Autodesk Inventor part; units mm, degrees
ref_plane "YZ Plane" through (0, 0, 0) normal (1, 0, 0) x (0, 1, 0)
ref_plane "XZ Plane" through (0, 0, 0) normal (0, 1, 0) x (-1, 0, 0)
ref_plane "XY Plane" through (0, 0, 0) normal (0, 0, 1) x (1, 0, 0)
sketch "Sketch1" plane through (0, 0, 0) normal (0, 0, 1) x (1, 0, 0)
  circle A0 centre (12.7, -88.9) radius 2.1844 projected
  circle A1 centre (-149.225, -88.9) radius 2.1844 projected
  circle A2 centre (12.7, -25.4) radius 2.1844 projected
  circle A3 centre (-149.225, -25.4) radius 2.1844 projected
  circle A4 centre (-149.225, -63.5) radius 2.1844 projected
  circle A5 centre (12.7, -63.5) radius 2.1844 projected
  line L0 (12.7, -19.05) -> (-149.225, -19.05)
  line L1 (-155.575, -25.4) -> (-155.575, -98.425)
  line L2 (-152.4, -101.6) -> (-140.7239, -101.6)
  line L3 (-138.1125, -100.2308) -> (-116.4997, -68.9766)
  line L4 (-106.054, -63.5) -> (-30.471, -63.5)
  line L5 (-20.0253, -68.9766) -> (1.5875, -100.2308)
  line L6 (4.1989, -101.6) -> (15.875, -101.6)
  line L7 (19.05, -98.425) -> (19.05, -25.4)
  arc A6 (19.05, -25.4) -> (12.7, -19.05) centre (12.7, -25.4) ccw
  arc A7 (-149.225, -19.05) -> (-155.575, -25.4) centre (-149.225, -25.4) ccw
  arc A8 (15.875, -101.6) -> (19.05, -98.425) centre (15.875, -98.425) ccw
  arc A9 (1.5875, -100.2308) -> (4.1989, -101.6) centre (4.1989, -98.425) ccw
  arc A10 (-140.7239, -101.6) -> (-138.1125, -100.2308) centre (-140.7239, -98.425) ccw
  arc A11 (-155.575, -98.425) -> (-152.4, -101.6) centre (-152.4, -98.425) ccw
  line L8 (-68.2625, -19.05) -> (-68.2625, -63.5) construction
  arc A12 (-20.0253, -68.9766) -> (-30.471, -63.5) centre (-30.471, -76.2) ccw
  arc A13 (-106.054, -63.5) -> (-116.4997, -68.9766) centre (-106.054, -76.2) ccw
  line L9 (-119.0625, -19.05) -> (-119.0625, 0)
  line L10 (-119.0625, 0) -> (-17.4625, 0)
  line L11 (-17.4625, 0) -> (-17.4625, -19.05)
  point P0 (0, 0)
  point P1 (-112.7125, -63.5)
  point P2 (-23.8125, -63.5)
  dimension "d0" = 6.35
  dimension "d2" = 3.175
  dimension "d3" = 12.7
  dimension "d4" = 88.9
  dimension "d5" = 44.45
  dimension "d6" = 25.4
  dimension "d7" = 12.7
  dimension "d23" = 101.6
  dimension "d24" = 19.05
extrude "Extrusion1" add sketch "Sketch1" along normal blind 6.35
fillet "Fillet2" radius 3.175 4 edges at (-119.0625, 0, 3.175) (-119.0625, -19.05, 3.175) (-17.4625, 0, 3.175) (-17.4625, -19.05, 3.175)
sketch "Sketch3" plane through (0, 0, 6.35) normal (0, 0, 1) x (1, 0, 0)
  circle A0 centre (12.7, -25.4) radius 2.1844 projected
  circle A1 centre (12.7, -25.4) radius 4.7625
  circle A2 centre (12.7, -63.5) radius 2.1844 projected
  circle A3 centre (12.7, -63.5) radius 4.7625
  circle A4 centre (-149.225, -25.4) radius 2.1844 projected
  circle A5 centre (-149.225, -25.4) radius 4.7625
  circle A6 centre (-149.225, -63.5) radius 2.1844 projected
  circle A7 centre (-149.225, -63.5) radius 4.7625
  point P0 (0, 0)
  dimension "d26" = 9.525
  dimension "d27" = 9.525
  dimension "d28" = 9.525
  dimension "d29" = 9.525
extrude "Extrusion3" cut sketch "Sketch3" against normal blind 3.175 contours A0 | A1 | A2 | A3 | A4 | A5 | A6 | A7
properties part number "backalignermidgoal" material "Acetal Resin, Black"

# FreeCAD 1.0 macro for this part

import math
import FreeCAD as App
import Part
import Sketcher

V = App.Vector
Q = App.Units.Quantity


def edges_at(feature, points):
    """Names of the edges that pass closest to the given points."""
    edges = feature.Shape.Edges
    near = lambda p: min(range(len(edges)), key=lambda i: edges[i].distToShape(Part.Vertex(*p))[0])
    return sorted({f"Edge{near(p) + 1}" for p in points})

doc = App.newDocument("Part")
body = doc.addObject("PartDesign::Body", "Body")

# Sketch on XY plane
sketch1 = doc.addObject("Sketcher::SketchObject", "Sketch")
body.addObject(sketch1)
sketch1.AttachmentSupport = (doc.XY_Plane, [""])
sketch1.MapMode = "FlatFace"
sketch1.addGeometry([
    Part.ArcOfCircle(Part.Circle(V(12.7, -25.4, 0), V(0, 0, 1), 6.35), math.radians(0), math.radians(90)),  # 0
    Part.LineSegment(V(12.7, -19.05, 0), V(-17.4625, -19.05, 0)),  # 1
    Part.LineSegment(V(-17.4625, -19.05, 0), V(-17.4625, 0, 0)),  # 2
    Part.LineSegment(V(-17.4625, 0, 0), V(-119.0625, 0, 0)),  # 3
    Part.LineSegment(V(-119.0625, 0, 0), V(-119.0625, -19.05, 0)),  # 4
    Part.LineSegment(V(-119.0625, -19.05, 0), V(-149.225, -19.05, 0)),  # 5
    Part.ArcOfCircle(Part.Circle(V(-149.225, -25.4, 0), V(0, 0, 1), 6.35), math.radians(90), math.radians(180)),  # 6
    Part.LineSegment(V(-155.575, -25.4, 0), V(-155.575, -98.425, 0)),  # 7
    Part.ArcOfCircle(Part.Circle(V(-152.4, -98.425, 0), V(0, 0, 1), 3.175), math.radians(180), math.radians(270)),  # 8
    Part.LineSegment(V(-152.4, -101.6, 0), V(-140.7239, -101.6, 0)),  # 9
    Part.ArcOfCircle(Part.Circle(V(-140.7239, -98.425, 0), V(0, 0, 1), 3.175), math.radians(-90), math.radians(-34.664109)),  # 10
    Part.LineSegment(V(-138.1125, -100.2308, 0), V(-116.4997, -68.9766, 0)),  # 11
    Part.ArcOfCircle(Part.Circle(V(-106.054, -76.2, 0), V(0, 0, 1), 12.7), math.radians(90), math.radians(145.335405)),  # 12
    Part.LineSegment(V(-106.054, -63.5, 0), V(-30.471, -63.5, 0)),  # 13
    Part.ArcOfCircle(Part.Circle(V(-30.471, -76.2, 0), V(0, 0, 1), 12.700006), math.radians(34.664595), math.radians(90)),  # 14
    Part.LineSegment(V(-20.0253, -68.9766, 0), V(1.5875, -100.2308, 0)),  # 15
    Part.ArcOfCircle(Part.Circle(V(4.1989, -98.425, 0), V(0, 0, 1), 3.174953), math.radians(-145.335891), math.radians(-90)),  # 16
    Part.LineSegment(V(4.1989, -101.6, 0), V(15.875, -101.6, 0)),  # 17
    Part.ArcOfCircle(Part.Circle(V(15.875, -98.425, 0), V(0, 0, 1), 3.175), math.radians(-90), math.radians(0)),  # 18
    Part.LineSegment(V(19.05, -98.425, 0), V(19.05, -25.4, 0)),  # 19
    Part.Circle(V(-149.225, -88.9, 0), V(0, 0, 1), 2.1844),  # 20
    Part.Circle(V(-149.225, -63.5, 0), V(0, 0, 1), 2.1844),  # 21
    Part.Circle(V(12.7, -88.9, 0), V(0, 0, 1), 2.1844),  # 22
    Part.Circle(V(12.7, -63.5, 0), V(0, 0, 1), 2.1844),  # 23
    Part.Circle(V(-149.225, -25.4, 0), V(0, 0, 1), 2.1844),  # 24
    Part.Circle(V(12.7, -25.4, 0), V(0, 0, 1), 2.1844),  # 25
], False)
sketch1.addConstraint([
    Sketcher.Constraint("Tangent", 0, 2, 1, 1),
    Sketcher.Constraint("Coincident", 1, 2, 2, 1),
    Sketcher.Constraint("Coincident", 2, 2, 3, 1),
    Sketcher.Constraint("Coincident", 3, 2, 4, 1),
    Sketcher.Constraint("Coincident", 4, 2, 5, 1),
    Sketcher.Constraint("Tangent", 5, 2, 6, 1),
    Sketcher.Constraint("Tangent", 6, 2, 7, 1),
    Sketcher.Constraint("Tangent", 7, 2, 8, 1),
    Sketcher.Constraint("Tangent", 8, 2, 9, 1),
    Sketcher.Constraint("Tangent", 9, 2, 10, 1),
    Sketcher.Constraint("Tangent", 10, 2, 11, 1),
    Sketcher.Constraint("Tangent", 11, 2, 12, 2),
    Sketcher.Constraint("Tangent", 12, 1, 13, 1),
    Sketcher.Constraint("Tangent", 13, 2, 14, 2),
    Sketcher.Constraint("Tangent", 14, 1, 15, 1),
    Sketcher.Constraint("Tangent", 15, 2, 16, 1),
    Sketcher.Constraint("Tangent", 16, 2, 17, 1),
    Sketcher.Constraint("Tangent", 17, 2, 18, 1),
    Sketcher.Constraint("Tangent", 18, 2, 19, 1),
    Sketcher.Constraint("Tangent", 19, 2, 0, 1),
    Sketcher.Constraint("Horizontal", 1),
    Sketcher.Constraint("Vertical", 2),
    Sketcher.Constraint("Horizontal", 3),
    Sketcher.Constraint("Vertical", 4),
    Sketcher.Constraint("Horizontal", 5),
    Sketcher.Constraint("Vertical", 7),
    Sketcher.Constraint("Horizontal", 9),
    Sketcher.Constraint("Horizontal", 13),
    Sketcher.Constraint("Horizontal", 17),
    Sketcher.Constraint("Vertical", 19),
    Sketcher.Constraint("Coincident", 24, 3, 6, 3),
    Sketcher.Constraint("Coincident", 25, 3, 0, 3),
    Sketcher.Constraint("Equal", 0, 6),
    Sketcher.Constraint("Equal", 8, 10),
    Sketcher.Constraint("Equal", 12, 14),
    Sketcher.Constraint("Equal", 10, 16),
    Sketcher.Constraint("Equal", 16, 18),
    Sketcher.Constraint("Equal", 20, 21),
    Sketcher.Constraint("Equal", 21, 22),
    Sketcher.Constraint("Equal", 22, 23),
    Sketcher.Constraint("Equal", 23, 24),
    Sketcher.Constraint("Equal", 24, 25),
    Sketcher.Constraint("PointOnObject", 2, 2, -1),
    Sketcher.Constraint("Horizontal", 0, 3, 6, 3),
    Sketcher.Constraint("Horizontal", 10, 3, 16, 3),
    Sketcher.Constraint("Horizontal", 20, 3, 22, 3),
    Sketcher.Constraint("Horizontal", 21, 3, 23, 3),
    Sketcher.Constraint("Horizontal", 23, 3, 12, 1),
    Sketcher.Constraint("Horizontal", 11, 2, 14, 1),
    Sketcher.Constraint("Vertical", 6, 3, 20, 3),
    Sketcher.Constraint("Vertical", 20, 3, 21, 3),
    Sketcher.Constraint("Vertical", 0, 3, 22, 3),
    Sketcher.Constraint("Vertical", 22, 3, 23, 3),
    Sketcher.Constraint("Equal", 1, 5),
    Sketcher.Constraint("Equal", 9, 17),
    Sketcher.Constraint("Radius", 12, Q("0.5 in")),
    Sketcher.Constraint("DistanceX", 3, 2, 3, 1, Q("4 in")),
    Sketcher.Constraint("Radius", 0, Q("0.25 in")),
    Sketcher.Constraint("DistanceY", 0, 3, -1, 1, Q("1 in")),
    Sketcher.Constraint("DistanceY", 8, 2, -1, 1, Q("4 in")),
    Sketcher.Constraint("Radius", 8, Q("0.125 in")),
    Sketcher.Constraint("DistanceY", 20, 3, 21, 3, Q("1 in")),
    Sketcher.Constraint("DistanceX", -1, 1, 0, 3, Q("0.5 in")),
    Sketcher.Constraint("DistanceY", 20, 3, -1, 1, Q("3.5 in")),
    Sketcher.Constraint("Diameter", 20, Q("0.172 in")),
    Sketcher.Constraint("DistanceX", 8, 3, -1, 1, Q("6 in")),
    Sketcher.Constraint("DistanceX", 9, 1, 9, 2, Q("0.4597 in")),
    Sketcher.Constraint("DistanceX", 13, 1, 13, 2, Q("2.9757 in")),
])
pad1 = doc.addObject("PartDesign::Pad", "Pad")
body.addObject(pad1)
pad1.Profile = sketch1
pad1.Length = Q("0.25 in")
doc.recompute()

fillet = doc.addObject("PartDesign::Fillet", "Fillet")
body.addObject(fillet)
fillet.Base = (pad1, edges_at(pad1, [
    (-119.062, 0, 3.175),
    (-119.062, -19.05, 3.175),
    (-17.462, 0, 3.175),
    (-17.462, -19.05, 3.175),
]))
fillet.Radius = Q("0.125 in")

# Sketch on XY plane
sketch2 = doc.addObject("Sketcher::SketchObject", "Sketch001")
body.addObject(sketch2)
sketch2.AttachmentSupport = (doc.XY_Plane, [""])
sketch2.MapMode = "FlatFace"
sketch2.AttachmentOffset = App.Placement(V(0, 0, 0.25 * 25.4), App.Rotation())
sketch2.addGeometry([
    Part.Circle(V(12.7, -25.4, 0), V(0, 0, 1), 4.7625),
    Part.Circle(V(12.7, -63.5, 0), V(0, 0, 1), 4.7625),
    Part.Circle(V(-149.225, -25.4, 0), V(0, 0, 1), 4.7625),
    Part.Circle(V(-149.225, -63.5, 0), V(0, 0, 1), 4.7625),
], False)
sketch2.addConstraint([
    Sketcher.Constraint("Equal", 0, 1),
    Sketcher.Constraint("Equal", 1, 2),
    Sketcher.Constraint("Equal", 2, 3),
    Sketcher.Constraint("Horizontal", 0, 3, 2, 3),
    Sketcher.Constraint("Horizontal", 1, 3, 3, 3),
    Sketcher.Constraint("Vertical", 0, 3, 1, 3),
    Sketcher.Constraint("Vertical", 2, 3, 3, 3),
    Sketcher.Constraint("Diameter", 0, Q("0.375 in")),
    Sketcher.Constraint("DistanceY", 0, 3, -1, 1, Q("1 in")),
    Sketcher.Constraint("DistanceX", -1, 1, 0, 3, Q("0.5 in")),
    Sketcher.Constraint("DistanceY", 1, 3, -1, 1, Q("2.5 in")),
    Sketcher.Constraint("DistanceX", 2, 3, -1, 1, Q("5.875 in")),
])
pocket1 = doc.addObject("PartDesign::Pocket", "Pocket")
body.addObject(pocket1)
pocket1.Profile = sketch2
pocket1.Length = Q("0.125 in")

doc.recompute()
